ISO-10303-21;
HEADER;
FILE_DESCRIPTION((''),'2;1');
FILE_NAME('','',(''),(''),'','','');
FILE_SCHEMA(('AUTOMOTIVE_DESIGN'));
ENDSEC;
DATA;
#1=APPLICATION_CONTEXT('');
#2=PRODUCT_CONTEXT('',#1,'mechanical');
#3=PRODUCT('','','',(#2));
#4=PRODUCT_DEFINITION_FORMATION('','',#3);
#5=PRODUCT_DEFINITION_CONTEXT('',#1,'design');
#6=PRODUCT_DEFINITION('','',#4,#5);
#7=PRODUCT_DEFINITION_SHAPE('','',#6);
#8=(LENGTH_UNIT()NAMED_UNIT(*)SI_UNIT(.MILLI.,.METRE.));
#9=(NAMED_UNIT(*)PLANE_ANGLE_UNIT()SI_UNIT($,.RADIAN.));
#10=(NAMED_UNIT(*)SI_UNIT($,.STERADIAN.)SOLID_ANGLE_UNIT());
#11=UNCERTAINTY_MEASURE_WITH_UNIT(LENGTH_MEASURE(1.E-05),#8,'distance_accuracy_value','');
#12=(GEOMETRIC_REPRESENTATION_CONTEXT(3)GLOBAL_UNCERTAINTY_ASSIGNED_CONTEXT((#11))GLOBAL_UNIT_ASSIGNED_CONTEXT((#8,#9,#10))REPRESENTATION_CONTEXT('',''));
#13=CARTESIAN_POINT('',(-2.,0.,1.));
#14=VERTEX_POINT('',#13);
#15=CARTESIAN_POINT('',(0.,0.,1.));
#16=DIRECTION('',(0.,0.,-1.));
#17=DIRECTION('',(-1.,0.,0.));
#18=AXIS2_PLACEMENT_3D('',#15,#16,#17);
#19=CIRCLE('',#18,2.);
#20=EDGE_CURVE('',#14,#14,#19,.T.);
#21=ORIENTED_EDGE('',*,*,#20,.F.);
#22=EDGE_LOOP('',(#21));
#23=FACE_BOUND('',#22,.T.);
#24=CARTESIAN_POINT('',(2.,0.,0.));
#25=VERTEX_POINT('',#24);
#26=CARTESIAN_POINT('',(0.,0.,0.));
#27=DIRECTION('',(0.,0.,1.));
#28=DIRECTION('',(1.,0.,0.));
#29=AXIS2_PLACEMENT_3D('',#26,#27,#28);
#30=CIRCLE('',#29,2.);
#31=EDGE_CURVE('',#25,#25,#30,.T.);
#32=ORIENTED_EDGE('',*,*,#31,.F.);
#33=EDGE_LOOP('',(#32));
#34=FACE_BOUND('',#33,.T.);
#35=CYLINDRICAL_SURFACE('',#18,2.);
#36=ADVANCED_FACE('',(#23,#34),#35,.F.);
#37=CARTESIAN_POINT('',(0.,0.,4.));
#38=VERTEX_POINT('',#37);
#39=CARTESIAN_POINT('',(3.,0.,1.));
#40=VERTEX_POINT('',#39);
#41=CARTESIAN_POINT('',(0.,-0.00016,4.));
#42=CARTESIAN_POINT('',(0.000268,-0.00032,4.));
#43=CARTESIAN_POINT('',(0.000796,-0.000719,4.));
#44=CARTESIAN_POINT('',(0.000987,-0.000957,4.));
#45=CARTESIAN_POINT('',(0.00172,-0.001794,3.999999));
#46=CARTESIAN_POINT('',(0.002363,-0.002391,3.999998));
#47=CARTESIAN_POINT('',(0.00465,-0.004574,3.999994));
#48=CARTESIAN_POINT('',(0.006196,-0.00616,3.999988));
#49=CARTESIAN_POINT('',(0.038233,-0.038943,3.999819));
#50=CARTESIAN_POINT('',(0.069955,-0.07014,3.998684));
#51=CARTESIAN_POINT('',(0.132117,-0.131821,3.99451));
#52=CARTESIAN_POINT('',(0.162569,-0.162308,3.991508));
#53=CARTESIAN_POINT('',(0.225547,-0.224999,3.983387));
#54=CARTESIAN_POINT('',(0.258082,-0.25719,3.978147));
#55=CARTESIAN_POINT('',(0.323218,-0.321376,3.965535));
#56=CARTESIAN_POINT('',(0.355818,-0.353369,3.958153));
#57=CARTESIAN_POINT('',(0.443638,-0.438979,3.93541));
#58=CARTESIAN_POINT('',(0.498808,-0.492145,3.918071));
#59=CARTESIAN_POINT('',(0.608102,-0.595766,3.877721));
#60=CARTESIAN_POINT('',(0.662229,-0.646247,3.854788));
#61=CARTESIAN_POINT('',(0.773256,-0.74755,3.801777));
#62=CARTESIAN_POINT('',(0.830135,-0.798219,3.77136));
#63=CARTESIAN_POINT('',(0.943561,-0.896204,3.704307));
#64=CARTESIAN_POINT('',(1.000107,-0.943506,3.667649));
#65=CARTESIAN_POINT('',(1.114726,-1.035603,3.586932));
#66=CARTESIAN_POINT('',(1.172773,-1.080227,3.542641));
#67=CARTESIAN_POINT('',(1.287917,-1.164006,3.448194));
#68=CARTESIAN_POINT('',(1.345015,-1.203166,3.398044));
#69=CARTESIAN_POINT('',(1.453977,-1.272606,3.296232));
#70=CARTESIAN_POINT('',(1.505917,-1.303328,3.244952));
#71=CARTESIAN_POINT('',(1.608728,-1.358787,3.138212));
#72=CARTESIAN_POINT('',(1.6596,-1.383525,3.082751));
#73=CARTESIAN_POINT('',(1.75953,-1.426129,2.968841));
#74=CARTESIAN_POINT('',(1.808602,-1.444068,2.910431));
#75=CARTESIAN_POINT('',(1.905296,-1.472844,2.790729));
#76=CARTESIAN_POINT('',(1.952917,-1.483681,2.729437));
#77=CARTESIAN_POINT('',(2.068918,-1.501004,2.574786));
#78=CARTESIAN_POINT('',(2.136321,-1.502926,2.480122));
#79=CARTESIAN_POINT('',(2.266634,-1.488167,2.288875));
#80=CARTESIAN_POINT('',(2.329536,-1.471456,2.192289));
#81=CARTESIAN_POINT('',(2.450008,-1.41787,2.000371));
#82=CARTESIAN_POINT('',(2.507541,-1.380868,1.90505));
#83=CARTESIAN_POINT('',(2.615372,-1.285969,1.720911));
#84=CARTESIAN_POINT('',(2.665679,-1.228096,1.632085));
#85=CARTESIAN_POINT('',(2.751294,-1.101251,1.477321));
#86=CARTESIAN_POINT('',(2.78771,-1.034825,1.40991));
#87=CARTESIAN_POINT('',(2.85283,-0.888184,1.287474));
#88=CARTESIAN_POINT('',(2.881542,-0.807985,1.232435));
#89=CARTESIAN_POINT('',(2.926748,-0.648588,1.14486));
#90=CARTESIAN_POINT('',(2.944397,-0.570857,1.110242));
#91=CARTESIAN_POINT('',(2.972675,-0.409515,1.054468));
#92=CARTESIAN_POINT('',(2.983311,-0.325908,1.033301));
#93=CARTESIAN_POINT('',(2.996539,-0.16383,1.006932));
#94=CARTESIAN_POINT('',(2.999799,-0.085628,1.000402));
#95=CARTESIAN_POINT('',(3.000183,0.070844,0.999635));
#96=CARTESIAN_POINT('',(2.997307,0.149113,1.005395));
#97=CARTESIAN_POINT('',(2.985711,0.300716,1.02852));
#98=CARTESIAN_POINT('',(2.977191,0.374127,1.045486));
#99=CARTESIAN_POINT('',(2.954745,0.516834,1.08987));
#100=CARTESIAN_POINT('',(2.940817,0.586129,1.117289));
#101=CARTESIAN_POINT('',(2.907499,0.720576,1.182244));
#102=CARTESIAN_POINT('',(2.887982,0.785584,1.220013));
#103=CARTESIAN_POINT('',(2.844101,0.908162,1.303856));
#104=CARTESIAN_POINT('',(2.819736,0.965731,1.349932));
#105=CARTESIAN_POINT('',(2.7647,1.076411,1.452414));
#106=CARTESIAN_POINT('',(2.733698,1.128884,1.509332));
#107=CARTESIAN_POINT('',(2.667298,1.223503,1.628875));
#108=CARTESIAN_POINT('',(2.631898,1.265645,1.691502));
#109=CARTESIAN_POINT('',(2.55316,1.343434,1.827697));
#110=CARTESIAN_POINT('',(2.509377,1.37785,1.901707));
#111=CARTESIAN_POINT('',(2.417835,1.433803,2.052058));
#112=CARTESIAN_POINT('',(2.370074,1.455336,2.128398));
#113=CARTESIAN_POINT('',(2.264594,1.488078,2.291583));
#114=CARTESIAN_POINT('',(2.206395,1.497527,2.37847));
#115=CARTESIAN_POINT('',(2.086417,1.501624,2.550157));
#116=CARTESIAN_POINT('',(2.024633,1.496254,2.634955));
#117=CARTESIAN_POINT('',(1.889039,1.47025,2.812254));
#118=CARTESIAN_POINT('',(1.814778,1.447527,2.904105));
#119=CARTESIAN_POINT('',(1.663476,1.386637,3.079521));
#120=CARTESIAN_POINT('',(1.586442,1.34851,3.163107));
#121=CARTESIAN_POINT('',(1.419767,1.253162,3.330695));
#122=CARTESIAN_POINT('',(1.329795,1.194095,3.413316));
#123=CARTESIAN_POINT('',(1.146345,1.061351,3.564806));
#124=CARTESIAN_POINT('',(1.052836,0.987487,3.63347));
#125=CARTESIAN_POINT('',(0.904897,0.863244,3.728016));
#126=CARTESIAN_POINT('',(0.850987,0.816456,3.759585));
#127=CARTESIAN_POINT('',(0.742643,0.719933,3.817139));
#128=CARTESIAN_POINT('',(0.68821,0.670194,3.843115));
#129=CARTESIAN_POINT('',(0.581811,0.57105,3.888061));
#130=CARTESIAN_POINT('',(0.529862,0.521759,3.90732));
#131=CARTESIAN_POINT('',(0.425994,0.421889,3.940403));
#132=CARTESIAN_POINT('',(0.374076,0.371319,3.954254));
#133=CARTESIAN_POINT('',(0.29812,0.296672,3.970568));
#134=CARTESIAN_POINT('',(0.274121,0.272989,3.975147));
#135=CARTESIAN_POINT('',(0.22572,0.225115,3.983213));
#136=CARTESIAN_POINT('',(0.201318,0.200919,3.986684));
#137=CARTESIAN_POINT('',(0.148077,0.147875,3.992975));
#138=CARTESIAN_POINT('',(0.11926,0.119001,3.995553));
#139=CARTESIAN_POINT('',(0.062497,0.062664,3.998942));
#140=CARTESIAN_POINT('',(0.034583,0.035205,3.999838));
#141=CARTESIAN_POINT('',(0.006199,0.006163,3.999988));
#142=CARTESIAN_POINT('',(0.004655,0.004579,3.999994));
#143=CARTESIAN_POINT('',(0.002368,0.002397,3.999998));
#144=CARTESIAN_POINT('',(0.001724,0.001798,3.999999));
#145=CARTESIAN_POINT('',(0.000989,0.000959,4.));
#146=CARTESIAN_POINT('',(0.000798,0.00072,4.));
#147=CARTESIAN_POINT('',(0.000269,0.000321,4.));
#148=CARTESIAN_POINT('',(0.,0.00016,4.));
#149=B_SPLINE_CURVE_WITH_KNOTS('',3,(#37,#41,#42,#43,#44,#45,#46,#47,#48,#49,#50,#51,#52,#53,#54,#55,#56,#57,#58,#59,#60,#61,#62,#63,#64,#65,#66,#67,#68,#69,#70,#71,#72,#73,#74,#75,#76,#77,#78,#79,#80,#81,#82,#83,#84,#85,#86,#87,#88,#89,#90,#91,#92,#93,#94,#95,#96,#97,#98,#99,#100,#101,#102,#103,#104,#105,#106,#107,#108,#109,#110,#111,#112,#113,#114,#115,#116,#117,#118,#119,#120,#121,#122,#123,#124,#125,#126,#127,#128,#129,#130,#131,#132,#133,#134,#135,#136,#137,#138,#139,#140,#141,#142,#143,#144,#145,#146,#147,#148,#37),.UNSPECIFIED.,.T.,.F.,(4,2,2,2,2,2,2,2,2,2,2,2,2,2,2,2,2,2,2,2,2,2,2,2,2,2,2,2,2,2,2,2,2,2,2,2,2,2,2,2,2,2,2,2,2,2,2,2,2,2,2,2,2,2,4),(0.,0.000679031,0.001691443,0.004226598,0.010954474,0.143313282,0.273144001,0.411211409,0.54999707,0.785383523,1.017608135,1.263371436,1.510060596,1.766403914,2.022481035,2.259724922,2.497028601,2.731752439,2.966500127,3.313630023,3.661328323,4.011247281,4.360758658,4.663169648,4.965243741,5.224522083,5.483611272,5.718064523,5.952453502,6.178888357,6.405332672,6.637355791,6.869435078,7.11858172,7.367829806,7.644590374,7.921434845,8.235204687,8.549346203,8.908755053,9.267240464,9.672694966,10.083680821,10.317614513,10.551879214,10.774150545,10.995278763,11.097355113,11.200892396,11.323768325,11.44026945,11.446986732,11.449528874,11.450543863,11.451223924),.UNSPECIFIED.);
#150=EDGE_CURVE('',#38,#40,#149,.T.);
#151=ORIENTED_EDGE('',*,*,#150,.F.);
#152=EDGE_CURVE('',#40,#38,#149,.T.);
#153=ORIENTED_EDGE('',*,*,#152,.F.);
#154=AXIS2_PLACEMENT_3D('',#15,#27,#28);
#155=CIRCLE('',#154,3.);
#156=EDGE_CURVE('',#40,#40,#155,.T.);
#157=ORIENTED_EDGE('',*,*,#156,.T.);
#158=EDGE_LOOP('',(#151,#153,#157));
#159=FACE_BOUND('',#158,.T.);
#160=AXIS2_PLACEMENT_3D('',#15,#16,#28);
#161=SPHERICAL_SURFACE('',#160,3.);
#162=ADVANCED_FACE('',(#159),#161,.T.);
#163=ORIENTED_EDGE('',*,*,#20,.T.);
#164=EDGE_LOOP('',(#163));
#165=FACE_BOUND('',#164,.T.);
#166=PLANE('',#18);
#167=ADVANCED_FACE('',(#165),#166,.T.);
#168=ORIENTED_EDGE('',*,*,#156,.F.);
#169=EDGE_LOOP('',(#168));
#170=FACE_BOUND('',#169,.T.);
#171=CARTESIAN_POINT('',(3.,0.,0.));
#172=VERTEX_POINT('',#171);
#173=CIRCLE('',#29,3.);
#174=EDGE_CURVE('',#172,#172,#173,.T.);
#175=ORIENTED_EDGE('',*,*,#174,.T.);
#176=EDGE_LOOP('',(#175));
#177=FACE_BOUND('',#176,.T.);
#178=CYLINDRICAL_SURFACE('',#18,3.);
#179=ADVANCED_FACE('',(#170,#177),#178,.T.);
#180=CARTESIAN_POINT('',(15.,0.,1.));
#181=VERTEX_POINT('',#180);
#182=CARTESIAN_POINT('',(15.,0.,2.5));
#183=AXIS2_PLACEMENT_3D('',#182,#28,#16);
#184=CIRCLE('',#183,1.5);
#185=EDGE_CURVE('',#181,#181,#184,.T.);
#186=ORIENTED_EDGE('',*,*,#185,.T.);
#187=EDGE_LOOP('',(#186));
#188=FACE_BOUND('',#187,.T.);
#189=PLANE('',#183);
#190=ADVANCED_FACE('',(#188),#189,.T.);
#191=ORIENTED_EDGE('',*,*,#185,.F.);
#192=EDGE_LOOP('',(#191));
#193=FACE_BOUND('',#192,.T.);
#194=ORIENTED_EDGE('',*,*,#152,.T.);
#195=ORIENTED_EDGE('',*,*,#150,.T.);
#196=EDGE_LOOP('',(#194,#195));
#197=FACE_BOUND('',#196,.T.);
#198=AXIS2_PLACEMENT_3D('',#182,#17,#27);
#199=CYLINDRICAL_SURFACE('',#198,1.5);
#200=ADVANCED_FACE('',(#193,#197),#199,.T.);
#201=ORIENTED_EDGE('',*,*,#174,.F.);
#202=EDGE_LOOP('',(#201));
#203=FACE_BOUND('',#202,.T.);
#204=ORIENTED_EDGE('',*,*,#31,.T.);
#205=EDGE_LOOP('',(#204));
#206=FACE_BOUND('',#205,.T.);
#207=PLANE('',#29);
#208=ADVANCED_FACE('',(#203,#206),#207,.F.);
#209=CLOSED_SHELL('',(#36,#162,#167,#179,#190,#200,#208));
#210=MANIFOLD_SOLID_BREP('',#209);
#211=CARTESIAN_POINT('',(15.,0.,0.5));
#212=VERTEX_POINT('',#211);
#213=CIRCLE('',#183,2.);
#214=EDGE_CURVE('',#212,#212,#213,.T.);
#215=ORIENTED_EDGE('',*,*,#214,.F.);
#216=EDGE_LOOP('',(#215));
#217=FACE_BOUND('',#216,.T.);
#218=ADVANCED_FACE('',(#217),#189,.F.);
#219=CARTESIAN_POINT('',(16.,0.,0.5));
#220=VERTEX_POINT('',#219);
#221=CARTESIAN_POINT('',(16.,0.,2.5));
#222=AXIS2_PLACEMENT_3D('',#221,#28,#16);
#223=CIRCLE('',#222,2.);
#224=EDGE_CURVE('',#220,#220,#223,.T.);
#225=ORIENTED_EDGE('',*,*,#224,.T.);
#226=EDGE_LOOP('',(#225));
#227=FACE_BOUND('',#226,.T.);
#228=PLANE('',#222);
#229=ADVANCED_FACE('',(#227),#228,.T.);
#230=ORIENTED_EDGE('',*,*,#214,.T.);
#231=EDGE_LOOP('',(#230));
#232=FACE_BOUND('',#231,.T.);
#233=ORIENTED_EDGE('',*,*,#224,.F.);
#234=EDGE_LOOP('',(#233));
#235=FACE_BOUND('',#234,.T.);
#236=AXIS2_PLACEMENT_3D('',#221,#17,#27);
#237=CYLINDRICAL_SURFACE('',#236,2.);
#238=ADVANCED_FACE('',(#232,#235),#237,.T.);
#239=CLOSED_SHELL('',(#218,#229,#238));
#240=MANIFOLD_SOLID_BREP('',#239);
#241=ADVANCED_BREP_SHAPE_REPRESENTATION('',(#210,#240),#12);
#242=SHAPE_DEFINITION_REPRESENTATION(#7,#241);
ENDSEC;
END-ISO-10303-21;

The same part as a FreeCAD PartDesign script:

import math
import FreeCAD as App
import Part
import Sketcher

doc = App.newDocument("Part")
params = doc.addObject("Spreadsheet::Sheet", "Params")
for row, (alias, value) in enumerate([
    ("sketch1_diameter", "6 mm"),
    ("sketch1_diameter2", "4 mm"),
    ("pad1_length", "1 mm"),
    ("sketch2_radius", "3 mm"),
    ("revolution_angle", "360 deg"),
    ("sketch3_diameter", "3 mm"),
    ("pad2_length", "15 mm"),
    ("sketch4_diameter", "4 mm"),
    ("pad3_length", "1 mm"),
], start=1):
    params.set(f"A{row}", alias)
    params.set(f"B{row}", "=" + value)
    params.setAlias(f"B{row}", alias)

body = doc.addObject("PartDesign::Body", "Body")

# Sketch on XY plane
sketch1 = doc.addObject("Sketcher::SketchObject", "Sketch")
body.addObject(sketch1)
sketch1.AttachmentSupport = (doc.XY_Plane, [""])
sketch1.MapMode = "FlatFace"
sketch1.addGeometry([
    Part.Circle(App.Vector(0, 0, 0), App.Vector(0, 0, 1), 3),
    Part.Circle(App.Vector(0, 0, 0), App.Vector(0, 0, 1), 2),
], False)
sketch1.addConstraint([
    Sketcher.Constraint("Coincident", 0, 3, -1, 1),
    Sketcher.Constraint("Coincident", 1, 3, -1, 1),
    Sketcher.Constraint("Diameter", 0, 6.0),
    Sketcher.Constraint("Diameter", 1, 4.0),
])
sketch1.setExpression("Constraints[2]", "Params.sketch1_diameter")
sketch1.setExpression("Constraints[3]", "Params.sketch1_diameter2")
pad1 = doc.addObject("PartDesign::Pad", "Pad")
body.addObject(pad1)
pad1.Profile = sketch1
pad1.setExpression("Length", "Params.pad1_length")

# Sketch on XZ plane
sketch2 = doc.addObject("Sketcher::SketchObject", "Sketch001")
body.addObject(sketch2)
sketch2.AttachmentSupport = (doc.XZ_Plane, [""])
sketch2.MapMode = "FlatFace"
sketch2.addGeometry([
    Part.LineSegment(App.Vector(0, 1, 0), App.Vector(0, 4, 0)),
    Part.ArcOfCircle(Part.Circle(App.Vector(0, 1, 0), App.Vector(0, 0, 1), 3), math.radians(0), math.radians(90)),
    Part.LineSegment(App.Vector(3, 1, 0), App.Vector(0, 1, 0)),
], False)
sketch2.addConstraint([
    Sketcher.Constraint("Coincident", 0, 2, 1, 2),
    Sketcher.Constraint("Coincident", 1, 1, 2, 1),
    Sketcher.Constraint("Coincident", 2, 2, 0, 1),
    Sketcher.Constraint("Vertical", 0),
    Sketcher.Constraint("Horizontal", 2),
    Sketcher.Constraint("Coincident", 2, 2, 1, 3),
    Sketcher.Constraint("PointOnObject", 1, 3, -2),
    Sketcher.Constraint("Radius", 1, 3.0),
    Sketcher.Constraint("DistanceY", -1, 1, 1, 3, 1.0),
])
sketch2.setExpression("Constraints[7]", "Params.sketch2_radius")
revolution = doc.addObject("PartDesign::Revolution", "Revolution")
body.addObject(revolution)
revolution.Profile = sketch2
revolution.ReferenceAxis = (sketch2, ["V_Axis"])
revolution.setExpression("Angle", "Params.revolution_angle")

# Sketch on YZ plane
sketch3 = doc.addObject("Sketcher::SketchObject", "Sketch002")
body.addObject(sketch3)
sketch3.AttachmentSupport = (doc.YZ_Plane, [""])
sketch3.MapMode = "FlatFace"
sketch3.addGeometry(Part.Circle(App.Vector(0, 2.5, 0), App.Vector(0, 0, 1), 1.5), False)
sketch3.addConstraint([
    Sketcher.Constraint("PointOnObject", 0, 3, -2),
    Sketcher.Constraint("Diameter", 0, 3.0),
    Sketcher.Constraint("DistanceY", -1, 1, 0, 3, 2.5),
])
sketch3.setExpression("Constraints[1]", "Params.sketch3_diameter")
pad2 = doc.addObject("PartDesign::Pad", "Pad001")
body.addObject(pad2)
pad2.Profile = sketch3
pad2.setExpression("Length", "Params.pad2_length")
body2 = doc.addObject("PartDesign::Body", "Body001")

# Sketch on YZ plane
sketch4 = doc.addObject("Sketcher::SketchObject", "Sketch003")
body2.addObject(sketch4)
sketch4.AttachmentSupport = (doc.getObject("YZ_Plane001"), [""])
sketch4.MapMode = "FlatFace"
sketch4.AttachmentOffset = App.Placement(App.Vector(0, 0, 15), App.Rotation())
sketch4.addGeometry(Part.Circle(App.Vector(0, 2.5, 0), App.Vector(0, 0, 1), 2), False)
sketch4.addConstraint([
    Sketcher.Constraint("PointOnObject", 0, 3, -2),
    Sketcher.Constraint("Diameter", 0, 4.0),
    Sketcher.Constraint("DistanceY", -1, 1, 0, 3, 2.5),
])
sketch4.setExpression("Constraints[1]", "Params.sketch4_diameter")
pad3 = doc.addObject("PartDesign::Pad", "Pad002")
body2.addObject(pad3)
pad3.Profile = sketch4
pad3.setExpression("Length", "Params.pad3_length")

doc.recompute()
